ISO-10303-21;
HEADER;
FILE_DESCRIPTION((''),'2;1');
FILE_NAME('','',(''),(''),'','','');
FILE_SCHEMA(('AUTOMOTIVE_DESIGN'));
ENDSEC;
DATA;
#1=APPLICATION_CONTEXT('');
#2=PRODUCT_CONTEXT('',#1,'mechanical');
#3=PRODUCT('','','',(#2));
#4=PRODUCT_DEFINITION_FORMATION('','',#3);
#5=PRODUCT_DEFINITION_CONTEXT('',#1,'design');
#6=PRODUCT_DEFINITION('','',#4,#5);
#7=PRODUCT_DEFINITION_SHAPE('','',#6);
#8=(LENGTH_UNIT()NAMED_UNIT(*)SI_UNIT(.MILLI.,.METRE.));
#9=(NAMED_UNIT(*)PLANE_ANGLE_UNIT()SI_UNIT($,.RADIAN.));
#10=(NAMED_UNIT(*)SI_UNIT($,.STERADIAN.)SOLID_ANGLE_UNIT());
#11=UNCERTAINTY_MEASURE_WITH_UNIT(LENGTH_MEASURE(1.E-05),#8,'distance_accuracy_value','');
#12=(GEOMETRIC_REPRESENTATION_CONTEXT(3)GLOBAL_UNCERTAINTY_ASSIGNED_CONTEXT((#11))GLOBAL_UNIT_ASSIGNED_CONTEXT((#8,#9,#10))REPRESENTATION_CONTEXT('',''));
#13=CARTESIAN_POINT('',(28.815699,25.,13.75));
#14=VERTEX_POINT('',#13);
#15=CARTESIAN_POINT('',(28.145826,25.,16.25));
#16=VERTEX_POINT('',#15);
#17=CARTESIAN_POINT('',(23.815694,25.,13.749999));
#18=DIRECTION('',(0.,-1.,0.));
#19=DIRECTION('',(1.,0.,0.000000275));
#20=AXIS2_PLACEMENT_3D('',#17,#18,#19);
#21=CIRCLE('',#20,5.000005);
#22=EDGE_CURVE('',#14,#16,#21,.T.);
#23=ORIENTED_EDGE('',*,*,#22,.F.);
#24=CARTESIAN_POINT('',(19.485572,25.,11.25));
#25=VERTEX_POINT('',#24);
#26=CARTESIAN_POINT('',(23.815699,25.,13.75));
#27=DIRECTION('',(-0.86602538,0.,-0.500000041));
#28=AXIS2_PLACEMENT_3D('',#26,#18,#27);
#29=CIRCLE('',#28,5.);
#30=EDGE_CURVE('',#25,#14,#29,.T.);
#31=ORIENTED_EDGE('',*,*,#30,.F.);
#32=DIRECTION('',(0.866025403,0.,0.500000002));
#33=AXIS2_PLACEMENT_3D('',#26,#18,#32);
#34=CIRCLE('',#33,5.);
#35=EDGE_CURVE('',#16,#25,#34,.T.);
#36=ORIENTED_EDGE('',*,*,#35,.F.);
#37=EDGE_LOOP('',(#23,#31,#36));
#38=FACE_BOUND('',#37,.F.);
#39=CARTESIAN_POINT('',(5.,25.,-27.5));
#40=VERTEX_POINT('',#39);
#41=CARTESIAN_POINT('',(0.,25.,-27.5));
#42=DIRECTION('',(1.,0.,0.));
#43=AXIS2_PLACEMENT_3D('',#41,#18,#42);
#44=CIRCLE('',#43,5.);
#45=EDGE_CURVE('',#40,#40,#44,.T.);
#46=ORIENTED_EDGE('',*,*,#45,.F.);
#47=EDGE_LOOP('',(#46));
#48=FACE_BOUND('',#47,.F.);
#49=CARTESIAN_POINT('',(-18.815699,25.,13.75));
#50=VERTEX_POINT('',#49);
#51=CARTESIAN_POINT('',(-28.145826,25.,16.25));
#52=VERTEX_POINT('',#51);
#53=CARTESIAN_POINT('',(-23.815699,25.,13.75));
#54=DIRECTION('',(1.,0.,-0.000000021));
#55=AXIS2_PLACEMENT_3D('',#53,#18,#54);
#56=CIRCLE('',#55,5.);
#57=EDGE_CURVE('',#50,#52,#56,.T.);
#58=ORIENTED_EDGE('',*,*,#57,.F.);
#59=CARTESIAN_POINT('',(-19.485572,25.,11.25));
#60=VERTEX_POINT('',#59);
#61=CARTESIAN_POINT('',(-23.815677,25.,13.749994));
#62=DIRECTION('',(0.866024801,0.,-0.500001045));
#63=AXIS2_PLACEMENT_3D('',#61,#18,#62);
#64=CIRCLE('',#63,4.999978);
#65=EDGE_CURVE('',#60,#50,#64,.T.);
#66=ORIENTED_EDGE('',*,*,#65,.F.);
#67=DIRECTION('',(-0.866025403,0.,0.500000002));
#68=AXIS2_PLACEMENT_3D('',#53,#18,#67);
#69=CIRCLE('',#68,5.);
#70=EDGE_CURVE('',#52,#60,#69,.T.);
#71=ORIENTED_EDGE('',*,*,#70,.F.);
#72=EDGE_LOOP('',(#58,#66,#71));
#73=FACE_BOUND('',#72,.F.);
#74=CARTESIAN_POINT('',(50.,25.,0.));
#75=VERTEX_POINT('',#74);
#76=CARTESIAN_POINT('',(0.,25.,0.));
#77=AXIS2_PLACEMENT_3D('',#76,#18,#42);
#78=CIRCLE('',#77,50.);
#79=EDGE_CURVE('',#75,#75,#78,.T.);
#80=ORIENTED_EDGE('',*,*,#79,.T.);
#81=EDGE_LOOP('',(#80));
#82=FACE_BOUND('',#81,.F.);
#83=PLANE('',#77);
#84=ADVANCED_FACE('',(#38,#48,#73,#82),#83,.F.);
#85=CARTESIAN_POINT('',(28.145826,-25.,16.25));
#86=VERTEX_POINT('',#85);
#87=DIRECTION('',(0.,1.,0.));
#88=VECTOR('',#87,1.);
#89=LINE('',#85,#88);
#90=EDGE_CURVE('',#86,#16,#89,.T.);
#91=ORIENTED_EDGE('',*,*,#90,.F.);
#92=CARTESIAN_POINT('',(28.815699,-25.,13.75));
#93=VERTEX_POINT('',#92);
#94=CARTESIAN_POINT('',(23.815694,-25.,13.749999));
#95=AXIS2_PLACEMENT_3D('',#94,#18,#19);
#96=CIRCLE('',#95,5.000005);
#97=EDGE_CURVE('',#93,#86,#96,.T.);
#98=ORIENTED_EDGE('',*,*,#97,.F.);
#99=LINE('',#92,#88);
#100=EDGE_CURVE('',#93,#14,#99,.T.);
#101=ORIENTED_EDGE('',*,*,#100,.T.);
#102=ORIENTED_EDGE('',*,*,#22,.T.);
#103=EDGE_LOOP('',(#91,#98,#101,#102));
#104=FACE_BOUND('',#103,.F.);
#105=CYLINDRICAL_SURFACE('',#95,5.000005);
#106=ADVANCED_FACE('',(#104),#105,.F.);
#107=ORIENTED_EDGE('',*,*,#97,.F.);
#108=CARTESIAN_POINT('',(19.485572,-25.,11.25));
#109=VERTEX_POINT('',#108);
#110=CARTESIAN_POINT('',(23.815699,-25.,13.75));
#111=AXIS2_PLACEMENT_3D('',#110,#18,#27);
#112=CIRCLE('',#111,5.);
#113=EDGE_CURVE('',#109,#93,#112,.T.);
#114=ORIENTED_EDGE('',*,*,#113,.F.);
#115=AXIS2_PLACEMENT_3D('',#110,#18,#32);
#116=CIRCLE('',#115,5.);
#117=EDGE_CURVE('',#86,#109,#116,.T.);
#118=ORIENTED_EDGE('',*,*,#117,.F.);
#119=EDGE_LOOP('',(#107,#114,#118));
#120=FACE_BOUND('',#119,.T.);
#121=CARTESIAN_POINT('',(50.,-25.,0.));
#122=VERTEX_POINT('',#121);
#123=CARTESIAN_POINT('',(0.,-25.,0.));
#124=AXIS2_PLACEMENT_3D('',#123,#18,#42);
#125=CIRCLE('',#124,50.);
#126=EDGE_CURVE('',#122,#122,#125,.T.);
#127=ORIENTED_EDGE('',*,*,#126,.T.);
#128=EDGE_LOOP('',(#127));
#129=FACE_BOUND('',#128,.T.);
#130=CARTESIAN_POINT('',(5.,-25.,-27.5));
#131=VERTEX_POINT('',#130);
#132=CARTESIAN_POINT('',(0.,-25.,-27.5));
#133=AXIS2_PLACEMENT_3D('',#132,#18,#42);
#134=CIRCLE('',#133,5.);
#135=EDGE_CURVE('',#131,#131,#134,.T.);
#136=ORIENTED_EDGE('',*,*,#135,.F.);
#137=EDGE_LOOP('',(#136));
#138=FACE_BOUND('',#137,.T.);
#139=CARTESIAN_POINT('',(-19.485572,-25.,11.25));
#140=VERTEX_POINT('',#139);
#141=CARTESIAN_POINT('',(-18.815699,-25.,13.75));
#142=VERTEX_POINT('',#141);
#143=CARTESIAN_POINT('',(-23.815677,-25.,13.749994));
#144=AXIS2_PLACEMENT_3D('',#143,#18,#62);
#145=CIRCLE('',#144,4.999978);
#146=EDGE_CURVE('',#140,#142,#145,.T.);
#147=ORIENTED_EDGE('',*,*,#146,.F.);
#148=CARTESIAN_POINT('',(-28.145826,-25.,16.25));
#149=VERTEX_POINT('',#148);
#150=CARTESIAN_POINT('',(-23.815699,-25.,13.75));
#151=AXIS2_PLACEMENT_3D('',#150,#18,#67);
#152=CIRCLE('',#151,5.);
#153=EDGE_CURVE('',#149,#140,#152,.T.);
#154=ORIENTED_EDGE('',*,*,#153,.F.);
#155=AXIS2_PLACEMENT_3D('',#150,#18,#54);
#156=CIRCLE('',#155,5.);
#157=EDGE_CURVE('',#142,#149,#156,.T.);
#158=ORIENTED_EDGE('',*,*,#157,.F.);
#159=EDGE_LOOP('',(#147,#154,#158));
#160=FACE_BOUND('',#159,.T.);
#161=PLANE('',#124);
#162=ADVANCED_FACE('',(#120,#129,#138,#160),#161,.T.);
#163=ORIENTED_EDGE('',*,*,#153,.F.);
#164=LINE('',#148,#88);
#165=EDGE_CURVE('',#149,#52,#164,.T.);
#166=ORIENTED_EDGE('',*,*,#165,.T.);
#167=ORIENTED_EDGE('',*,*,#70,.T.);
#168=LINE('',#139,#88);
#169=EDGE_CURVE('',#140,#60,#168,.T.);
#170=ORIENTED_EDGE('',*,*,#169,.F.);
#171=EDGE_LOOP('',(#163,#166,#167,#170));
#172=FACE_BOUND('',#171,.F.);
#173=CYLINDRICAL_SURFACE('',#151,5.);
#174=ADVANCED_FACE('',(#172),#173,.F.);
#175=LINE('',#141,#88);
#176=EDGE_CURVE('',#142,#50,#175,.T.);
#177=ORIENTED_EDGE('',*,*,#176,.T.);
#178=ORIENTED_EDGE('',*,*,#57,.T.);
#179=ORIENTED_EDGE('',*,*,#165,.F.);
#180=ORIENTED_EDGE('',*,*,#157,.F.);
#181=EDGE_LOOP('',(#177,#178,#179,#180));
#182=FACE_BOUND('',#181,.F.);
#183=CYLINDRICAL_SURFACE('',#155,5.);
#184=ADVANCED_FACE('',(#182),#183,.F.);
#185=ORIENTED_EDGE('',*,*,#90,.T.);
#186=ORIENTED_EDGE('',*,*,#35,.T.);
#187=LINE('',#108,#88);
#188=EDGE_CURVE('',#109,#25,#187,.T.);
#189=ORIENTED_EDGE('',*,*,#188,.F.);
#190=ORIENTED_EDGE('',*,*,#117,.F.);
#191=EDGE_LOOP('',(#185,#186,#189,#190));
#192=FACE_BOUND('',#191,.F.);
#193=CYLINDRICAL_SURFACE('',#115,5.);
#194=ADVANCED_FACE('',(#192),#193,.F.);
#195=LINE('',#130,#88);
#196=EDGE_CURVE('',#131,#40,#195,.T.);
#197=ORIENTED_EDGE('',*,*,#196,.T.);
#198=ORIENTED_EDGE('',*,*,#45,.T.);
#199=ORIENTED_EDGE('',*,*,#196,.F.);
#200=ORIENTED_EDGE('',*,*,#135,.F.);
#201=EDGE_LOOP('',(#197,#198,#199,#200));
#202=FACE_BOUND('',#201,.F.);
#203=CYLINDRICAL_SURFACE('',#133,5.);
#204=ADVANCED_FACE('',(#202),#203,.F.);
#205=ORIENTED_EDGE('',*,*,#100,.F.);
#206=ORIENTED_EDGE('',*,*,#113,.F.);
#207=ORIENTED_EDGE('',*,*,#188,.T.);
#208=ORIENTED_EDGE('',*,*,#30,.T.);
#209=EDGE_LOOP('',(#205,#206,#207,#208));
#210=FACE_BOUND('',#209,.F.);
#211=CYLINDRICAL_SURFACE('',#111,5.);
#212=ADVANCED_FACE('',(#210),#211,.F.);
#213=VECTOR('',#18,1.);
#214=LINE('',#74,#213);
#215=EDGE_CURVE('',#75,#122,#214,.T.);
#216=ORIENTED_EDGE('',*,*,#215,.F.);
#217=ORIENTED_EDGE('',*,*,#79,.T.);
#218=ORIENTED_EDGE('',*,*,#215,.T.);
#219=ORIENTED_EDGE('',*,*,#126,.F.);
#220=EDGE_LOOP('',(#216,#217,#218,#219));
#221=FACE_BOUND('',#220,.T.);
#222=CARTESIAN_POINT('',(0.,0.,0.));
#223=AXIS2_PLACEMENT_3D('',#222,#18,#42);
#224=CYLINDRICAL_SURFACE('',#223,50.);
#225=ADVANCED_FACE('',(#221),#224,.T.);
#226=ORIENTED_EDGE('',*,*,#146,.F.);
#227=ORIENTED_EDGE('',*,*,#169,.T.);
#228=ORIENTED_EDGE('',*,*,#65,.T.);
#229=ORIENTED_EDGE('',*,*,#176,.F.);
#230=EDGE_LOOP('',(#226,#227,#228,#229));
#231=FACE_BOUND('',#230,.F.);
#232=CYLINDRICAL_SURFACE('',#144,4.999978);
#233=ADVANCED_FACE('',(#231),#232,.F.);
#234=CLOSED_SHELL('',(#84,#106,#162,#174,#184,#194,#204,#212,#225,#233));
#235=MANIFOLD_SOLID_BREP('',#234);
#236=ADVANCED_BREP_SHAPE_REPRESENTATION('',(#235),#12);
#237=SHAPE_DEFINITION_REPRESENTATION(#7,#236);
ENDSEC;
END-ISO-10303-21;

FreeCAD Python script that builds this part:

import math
import FreeCAD as App
import Part
import Sketcher

V = App.Vector
Q = App.Units.Quantity

doc = App.newDocument("Part")
body = doc.addObject("PartDesign::Body", "Body")

sketch1 = body.newObject("Sketcher::SketchObject", "Sketch")
sketch1.AttachmentSupport = (doc.getObject("XZ_Plane"), [""])
sketch1.MapMode = "FlatFace"
sketch1.addGeometry(Part.Circle(V(0, 0, 0), V(0, 0, 1), 50), False)
sketch1.addConstraint([
    Sketcher.Constraint("Coincident", 0, 3, -1, 1),
    Sketcher.Constraint("Diameter", 0, Q("100 mm")),
])
pad1 = body.newObject("PartDesign::Pad", "Pad")
pad1.Profile = sketch1
pad1.Length = 50
pad1.Midplane = True

sketch2 = body.newObject("Sketcher::SketchObject", "Sketch001")
sketch2.AttachmentSupport = (doc.getObject("XZ_Plane"), [""])
sketch2.MapMode = "FlatFace"
sketch2.AttachmentOffset = App.Placement(V(0, 0, 25), App.Rotation())
sketch2.addGeometry([
    Part.ArcOfCircle(Part.Circle(V(-23.815677, 13.749994, 0), V(0, 0, 1), 4.999978), math.radians(-30.000069), math.radians(0.000068)),
    Part.ArcOfCircle(Part.Circle(V(-23.815699, 13.75, 0), V(0, 0, 1), 5), math.radians(-0.000001), math.radians(150.000001)),
    Part.ArcOfCircle(Part.Circle(V(-23.815699, 13.75, 0), V(0, 0, 1), 5), math.radians(150), math.radians(330)),
    Part.ArcOfCircle(Part.Circle(V(23.815699, 13.75, 0), V(0, 0, 1), 5), math.radians(30), math.radians(210)),
    Part.ArcOfCircle(Part.Circle(V(23.815699, 13.75, 0), V(0, 0, 1), 5), math.radians(-149.999997), math.radians(-0.000003)),
    Part.ArcOfCircle(Part.Circle(V(23.815694, 13.749999, 0), V(0, 0, 1), 5.000005), math.radians(0.000016), math.radians(29.999985)),
    Part.Circle(V(0, -27.5, 0), V(0, 0, 1), 5),
], False)
sketch2.addConstraint([
    Sketcher.Constraint("Coincident", 0, 2, 1, 1),
    Sketcher.Constraint("Coincident", 1, 2, 2, 1),
    Sketcher.Constraint("Coincident", 2, 2, 0, 1),
    Sketcher.Constraint("Coincident", 3, 2, 4, 1),
    Sketcher.Constraint("Coincident", 4, 2, 5, 1),
    Sketcher.Constraint("Coincident", 5, 2, 3, 1),
    Sketcher.Constraint("Coincident", 2, 3, 1, 3),
    Sketcher.Constraint("Coincident", 4, 3, 3, 3),
    Sketcher.Constraint("PointOnObject", 6, 3, -2),
    Sketcher.Constraint("Diameter", 6, Q("10 mm")),
    Sketcher.Constraint("Radius", 1, Q("5 mm")),
    Sketcher.Constraint("Radius", 3, Q("5 mm")),
    Sketcher.Constraint("DistanceY", 2, 2, 1, 2, Q("5 mm")),
    Sketcher.Constraint("DistanceY", 3, 2, 5, 2, Q("5 mm")),
    Sketcher.Constraint("DistanceY", 6, 3, -1, 1, Q("27.5 mm")),
    Sketcher.Constraint("DistanceY", 1, 3, 1, 2, Q("2.5 mm")),
    Sketcher.Constraint("DistanceY", 0, 2, 1, 2, Q("2.5 mm")),
    Sketcher.Constraint("DistanceY", 5, 3, 1, 2, Q("2.500001 mm")),
    Sketcher.Constraint("DistanceY", 3, 2, 5, 3, Q("2.499999 mm")),
    Sketcher.Constraint("DistanceY", 3, 2, 3, 3, Q("2.5 mm")),
    Sketcher.Constraint("DistanceY", 3, 2, 4, 2, Q("2.5 mm")),
    Sketcher.Constraint("DistanceY", -1, 1, 1, 3, Q("13.75 mm")),
    Sketcher.Constraint("Radius", 0, Q("4.999978 mm")),
    Sketcher.Constraint("DistanceX", 1, 3, -1, 1, Q("23.815699 mm")),
    Sketcher.Constraint("DistanceX", -1, 1, 3, 3, Q("23.815699 mm")),
])
pocket1 = body.newObject("PartDesign::Pocket", "Pocket")
pocket1.Profile = sketch2
pocket1.Length = 74

doc.recompute()
